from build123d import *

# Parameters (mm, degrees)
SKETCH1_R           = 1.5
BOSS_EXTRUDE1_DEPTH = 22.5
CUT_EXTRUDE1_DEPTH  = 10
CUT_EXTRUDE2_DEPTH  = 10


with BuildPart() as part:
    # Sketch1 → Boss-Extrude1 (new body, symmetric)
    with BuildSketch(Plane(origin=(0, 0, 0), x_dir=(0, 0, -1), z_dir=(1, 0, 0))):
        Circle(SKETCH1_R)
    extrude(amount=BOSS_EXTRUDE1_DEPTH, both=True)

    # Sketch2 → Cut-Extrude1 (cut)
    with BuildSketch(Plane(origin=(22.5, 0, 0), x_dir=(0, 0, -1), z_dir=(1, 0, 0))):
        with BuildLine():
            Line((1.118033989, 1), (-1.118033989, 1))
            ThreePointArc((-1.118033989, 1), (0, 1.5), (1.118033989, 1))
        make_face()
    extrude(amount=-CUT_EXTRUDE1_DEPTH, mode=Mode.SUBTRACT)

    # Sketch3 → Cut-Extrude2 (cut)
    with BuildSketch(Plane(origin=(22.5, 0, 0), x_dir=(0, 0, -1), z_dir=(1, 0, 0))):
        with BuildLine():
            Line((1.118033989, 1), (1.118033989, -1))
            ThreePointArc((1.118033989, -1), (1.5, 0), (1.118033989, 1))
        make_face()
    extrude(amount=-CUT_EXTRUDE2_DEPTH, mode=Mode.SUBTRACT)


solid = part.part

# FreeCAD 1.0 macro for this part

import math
import FreeCAD as App
import Part
import Sketcher

V = App.Vector
Q = App.Units.Quantity

doc = App.newDocument("Part")
params = doc.addObject("Spreadsheet::Sheet", "Params")
for row, (alias, value) in enumerate([
    ("sketch1_diameter", "3 mm"),
    ("pad1_length", "45 mm"),
    ("sketch2_radius", "1.5 mm"),
    ("pocket1_length", "10 mm"),
    ("sketch3_radius", "1.5 mm"),
    ("sketch3_width", "2 mm"),
    ("pocket2_length", "10 mm"),
], start=1):
    params.set(f"A{row}", alias)
    params.set(f"B{row}", "=" + value)
    params.setAlias(f"B{row}", alias)

body = doc.addObject("PartDesign::Body", "Body")

# Sketch on YZ plane
sketch1 = body.newObject("Sketcher::SketchObject", "Sketch")
sketch1.AttachmentSupport = (doc.getObject("YZ_Plane"), [""])
sketch1.MapMode = "FlatFace"
sketch1.addGeometry(Part.Circle(V(0, 0, 0), V(0, 0, 1), 1.5), False)
sketch1.addConstraint(Sketcher.Constraint("Coincident", 0, 3, -1, 1))
sketch1.addConstraint(Sketcher.Constraint("Diameter", 0, Q("3 mm")))
sketch1.setExpression("Constraints[1]", "Params.sketch1_diameter")
pad1 = body.newObject("PartDesign::Pad", "Pad")
pad1.Profile = sketch1
pad1.setExpression("Length", "Params.pad1_length")
pad1.Midplane = True

# Sketch on YZ plane
sketch2 = body.newObject("Sketcher::SketchObject", "Sketch001")
sketch2.AttachmentSupport = (doc.getObject("YZ_Plane"), [""])
sketch2.MapMode = "FlatFace"
sketch2.AttachmentOffset = App.Placement(V(0, 0, 22.5), App.Rotation())
sketch2.addGeometry(Part.LineSegment(V(1, 1.1, 0), V(1, -1.1, 0)), False)
sketch2.addGeometry(Part.ArcOfCircle(Part.Circle(V(0, 0, 0), V(0, 0, 1), 1.5), math.radians(-48), math.radians(48)), False)
sketch2.addConstraint(Sketcher.Constraint("Coincident", 0, 1, 1, 2))
sketch2.addConstraint(Sketcher.Constraint("Coincident", 1, 1, 0, 2))
sketch2.addConstraint(Sketcher.Constraint("Vertical", 0))
sketch2.addConstraint(Sketcher.Constraint("Coincident", 1, 3, -1, 1))
sketch2.addConstraint(Sketcher.Constraint("Radius", 1, Q("1.5 mm")))
sketch2.addConstraint(Sketcher.Constraint("DistanceX", -1, 1, 0, 1, Q("1 mm")))
sketch2.setExpression("Constraints[4]", "Params.sketch2_radius")
pocket1 = body.newObject("PartDesign::Pocket", "Pocket")
pocket1.Profile = sketch2
pocket1.setExpression("Length", "Params.pocket1_length")

# Sketch on YZ plane
sketch3 = body.newObject("Sketcher::SketchObject", "Sketch002")
sketch3.AttachmentSupport = (doc.getObject("YZ_Plane"), [""])
sketch3.MapMode = "FlatFace"
sketch3.AttachmentOffset = App.Placement(V(0, 0, 22.5), App.Rotation())
sketch3.addGeometry(Part.LineSegment(V(1, -1.1, 0), V(-1, -1.1, 0)), False)
sketch3.addGeometry(Part.ArcOfCircle(Part.Circle(V(0, 0, 0), V(0, 0, 1), 1.5), math.radians(-132), math.radians(-48)), False)
sketch3.addConstraint(Sketcher.Constraint("Coincident", 0, 1, 1, 2))
sketch3.addConstraint(Sketcher.Constraint("Coincident", 1, 1, 0, 2))
sketch3.addConstraint(Sketcher.Constraint("Horizontal", 0))
sketch3.addConstraint(Sketcher.Constraint("Coincident", 1, 3, -1, 1))
sketch3.addConstraint(Sketcher.Constraint("Radius", 1, Q("1.5 mm")))
sketch3.addConstraint(Sketcher.Constraint("DistanceX", 0, 2, 0, 1, Q("2 mm")))
sketch3.setExpression("Constraints[4]", "Params.sketch3_radius")
sketch3.setExpression("Constraints[5]", "Params.sketch3_width")
pocket2 = body.newObject("PartDesign::Pocket", "Pocket001")
pocket2.Profile = sketch3
pocket2.setExpression("Length", "Params.pocket2_length")

doc.recompute()
